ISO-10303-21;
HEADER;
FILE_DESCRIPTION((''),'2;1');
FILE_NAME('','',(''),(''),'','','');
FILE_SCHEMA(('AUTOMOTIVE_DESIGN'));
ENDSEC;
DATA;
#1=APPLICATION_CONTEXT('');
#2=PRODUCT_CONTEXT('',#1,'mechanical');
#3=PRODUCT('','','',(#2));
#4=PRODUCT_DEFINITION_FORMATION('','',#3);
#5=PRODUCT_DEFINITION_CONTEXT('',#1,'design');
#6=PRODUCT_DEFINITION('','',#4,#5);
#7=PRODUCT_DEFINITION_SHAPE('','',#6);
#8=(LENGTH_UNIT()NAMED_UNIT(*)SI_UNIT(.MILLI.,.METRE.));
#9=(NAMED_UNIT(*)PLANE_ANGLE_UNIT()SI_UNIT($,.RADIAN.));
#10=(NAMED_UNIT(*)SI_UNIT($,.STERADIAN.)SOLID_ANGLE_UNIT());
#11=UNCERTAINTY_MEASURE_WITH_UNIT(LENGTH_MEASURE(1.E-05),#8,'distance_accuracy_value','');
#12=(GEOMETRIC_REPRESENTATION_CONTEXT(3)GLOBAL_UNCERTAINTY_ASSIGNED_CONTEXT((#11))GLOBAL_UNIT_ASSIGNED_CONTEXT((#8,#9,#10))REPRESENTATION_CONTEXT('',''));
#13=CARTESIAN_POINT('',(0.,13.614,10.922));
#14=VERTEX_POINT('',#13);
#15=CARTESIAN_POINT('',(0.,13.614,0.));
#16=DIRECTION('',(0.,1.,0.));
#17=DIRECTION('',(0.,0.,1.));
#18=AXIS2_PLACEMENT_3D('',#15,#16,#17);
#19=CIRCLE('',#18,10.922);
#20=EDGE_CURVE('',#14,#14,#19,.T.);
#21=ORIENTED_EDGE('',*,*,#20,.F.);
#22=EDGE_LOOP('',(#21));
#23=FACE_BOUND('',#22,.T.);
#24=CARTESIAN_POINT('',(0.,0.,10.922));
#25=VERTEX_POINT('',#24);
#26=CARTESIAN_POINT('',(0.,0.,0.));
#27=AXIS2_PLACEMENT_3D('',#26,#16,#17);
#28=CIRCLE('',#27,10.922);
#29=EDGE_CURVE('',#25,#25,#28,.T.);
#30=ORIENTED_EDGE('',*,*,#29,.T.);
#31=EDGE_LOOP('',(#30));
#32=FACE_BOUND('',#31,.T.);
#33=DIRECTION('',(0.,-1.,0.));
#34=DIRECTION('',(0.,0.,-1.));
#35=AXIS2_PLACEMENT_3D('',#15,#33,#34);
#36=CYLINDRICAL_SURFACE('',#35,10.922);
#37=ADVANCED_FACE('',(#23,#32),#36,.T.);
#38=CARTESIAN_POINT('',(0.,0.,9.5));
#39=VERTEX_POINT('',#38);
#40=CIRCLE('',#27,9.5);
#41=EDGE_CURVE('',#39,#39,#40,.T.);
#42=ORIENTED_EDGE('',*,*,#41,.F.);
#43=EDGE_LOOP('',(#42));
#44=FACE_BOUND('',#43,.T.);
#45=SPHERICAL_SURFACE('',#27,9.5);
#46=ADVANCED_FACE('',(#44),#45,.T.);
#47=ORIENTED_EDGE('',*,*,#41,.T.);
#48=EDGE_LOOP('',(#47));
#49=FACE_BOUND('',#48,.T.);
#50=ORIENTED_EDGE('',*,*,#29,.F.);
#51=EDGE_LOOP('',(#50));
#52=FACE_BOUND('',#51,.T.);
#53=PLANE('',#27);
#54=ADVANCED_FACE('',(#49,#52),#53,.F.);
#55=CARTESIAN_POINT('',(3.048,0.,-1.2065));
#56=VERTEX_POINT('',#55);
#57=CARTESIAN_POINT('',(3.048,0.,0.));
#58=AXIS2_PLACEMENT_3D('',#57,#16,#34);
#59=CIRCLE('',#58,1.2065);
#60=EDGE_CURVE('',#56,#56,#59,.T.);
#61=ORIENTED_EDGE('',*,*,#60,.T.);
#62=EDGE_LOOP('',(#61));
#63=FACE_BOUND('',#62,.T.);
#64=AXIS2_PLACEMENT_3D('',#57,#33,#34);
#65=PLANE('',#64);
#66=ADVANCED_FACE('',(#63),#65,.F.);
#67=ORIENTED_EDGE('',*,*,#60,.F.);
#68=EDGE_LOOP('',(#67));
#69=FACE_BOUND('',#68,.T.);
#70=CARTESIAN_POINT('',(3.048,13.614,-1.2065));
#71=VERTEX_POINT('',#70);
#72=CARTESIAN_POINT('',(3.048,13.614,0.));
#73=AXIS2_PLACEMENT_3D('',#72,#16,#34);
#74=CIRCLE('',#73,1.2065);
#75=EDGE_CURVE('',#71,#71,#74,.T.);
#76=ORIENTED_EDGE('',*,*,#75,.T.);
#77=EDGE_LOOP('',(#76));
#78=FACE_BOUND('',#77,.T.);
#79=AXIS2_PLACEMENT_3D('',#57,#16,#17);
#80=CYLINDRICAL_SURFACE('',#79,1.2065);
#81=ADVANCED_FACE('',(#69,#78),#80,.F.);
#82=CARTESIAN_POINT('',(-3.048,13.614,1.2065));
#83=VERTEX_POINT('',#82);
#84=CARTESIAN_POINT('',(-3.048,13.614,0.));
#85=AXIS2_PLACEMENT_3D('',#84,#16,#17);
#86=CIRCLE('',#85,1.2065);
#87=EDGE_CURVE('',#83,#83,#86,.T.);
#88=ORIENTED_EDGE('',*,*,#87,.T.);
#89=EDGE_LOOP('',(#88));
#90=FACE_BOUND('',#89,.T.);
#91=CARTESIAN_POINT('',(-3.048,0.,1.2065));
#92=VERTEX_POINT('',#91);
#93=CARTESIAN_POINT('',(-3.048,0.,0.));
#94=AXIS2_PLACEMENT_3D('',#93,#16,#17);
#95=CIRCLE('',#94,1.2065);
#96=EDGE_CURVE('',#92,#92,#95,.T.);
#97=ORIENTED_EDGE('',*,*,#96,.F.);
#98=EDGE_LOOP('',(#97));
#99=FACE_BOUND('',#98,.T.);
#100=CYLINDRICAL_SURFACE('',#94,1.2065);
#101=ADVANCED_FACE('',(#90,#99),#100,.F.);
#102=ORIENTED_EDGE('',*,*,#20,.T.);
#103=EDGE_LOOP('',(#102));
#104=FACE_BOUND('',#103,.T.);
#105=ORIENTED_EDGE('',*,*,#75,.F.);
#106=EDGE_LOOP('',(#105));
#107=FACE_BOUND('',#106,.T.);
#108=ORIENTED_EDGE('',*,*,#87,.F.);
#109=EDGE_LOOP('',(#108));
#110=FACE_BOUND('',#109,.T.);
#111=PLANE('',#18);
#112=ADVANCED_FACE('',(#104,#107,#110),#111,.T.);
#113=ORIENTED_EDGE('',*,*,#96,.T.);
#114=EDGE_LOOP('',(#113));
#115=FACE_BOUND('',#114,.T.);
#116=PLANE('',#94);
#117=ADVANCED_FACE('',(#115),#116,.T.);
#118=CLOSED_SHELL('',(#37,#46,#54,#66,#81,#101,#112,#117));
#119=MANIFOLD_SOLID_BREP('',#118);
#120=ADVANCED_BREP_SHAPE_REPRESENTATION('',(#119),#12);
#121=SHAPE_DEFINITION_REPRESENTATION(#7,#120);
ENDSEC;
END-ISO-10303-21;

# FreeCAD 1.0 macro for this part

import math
import FreeCAD as App
import Part
import Sketcher

V = App.Vector
Q = App.Units.Quantity

doc = App.newDocument("Part")
params = doc.addObject("Spreadsheet::Sheet", "Params")
for row, (alias, value) in enumerate([
    ("revolution_angle", "360 deg"),
    ("sketch2_diameter", "0.86 in"),
    ("pad1_length", "13.614 mm"),
    ("sketch3_diameter", "0.095 in"),
    ("pocket1_length", "13.614 mm"),
], start=1):
    params.set(f"A{row}", alias)
    params.set(f"B{row}", "=" + value)
    params.setAlias(f"B{row}", alias)

body = doc.addObject("PartDesign::Body", "Body")

sketch1 = doc.addObject("Sketcher::SketchObject", "Sketch")
body.addObject(sketch1)
sketch1.AttachmentSupport = (doc.XY_Plane, [""])
sketch1.MapMode = "FlatFace"
sketch1.addGeometry([
    Part.LineSegment(V(-10, 0, 0), V(10, 0, 0)),
    Part.ArcOfCircle(Part.Circle(V(0, 0, 0), V(0, 0, 1), 10), math.radians(0), math.radians(180)),
], False)
sketch1.addConstraint([
    Sketcher.Constraint("Coincident", 0, 1, 1, 2),
    Sketcher.Constraint("Coincident", 1, 1, 0, 2),
    Sketcher.Constraint("Horizontal", 0),
    Sketcher.Constraint("Coincident", 1, 3, -1, 1),
    Sketcher.Constraint("PointOnObject", 0, 1, -1),
    Sketcher.Constraint("Radius", 1, Q("9.5 mm")),
])
revolution = doc.addObject("PartDesign::Revolution", "Revolution")
body.addObject(revolution)
revolution.Profile = sketch1
revolution.ReferenceAxis = (sketch1, ["H_Axis"])
revolution.setExpression("Angle", "Params.revolution_angle")

sketch2 = doc.addObject("Sketcher::SketchObject", "Sketch001")
body.addObject(sketch2)
sketch2.AttachmentSupport = (doc.XZ_Plane, [""])
sketch2.MapMode = "FlatFace"
sketch2.addGeometry(Part.Circle(V(0, 0, 0), V(0, 0, 1), 11), False)
sketch2.addConstraint([
    Sketcher.Constraint("Coincident", 0, 3, -1, 1),
    Sketcher.Constraint("Diameter", 0, Q("0.86 in")),
])
sketch2.setExpression("Constraints[1]", "Params.sketch2_diameter")
pad1 = doc.addObject("PartDesign::Pad", "Pad")
body.addObject(pad1)
pad1.Profile = sketch2
pad1.setExpression("Length", "Params.pad1_length")
pad1.Reversed = True

sketch3 = doc.addObject("Sketcher::SketchObject", "Sketch002")
body.addObject(sketch3)
sketch3.AttachmentSupport = (doc.XZ_Plane, [""])
sketch3.MapMode = "FlatFace"
sketch3.AttachmentOffset = App.Placement(V(0, 0, -13.614), App.Rotation())
sketch3.addGeometry([
    Part.Circle(V(-3, 0, 0), V(0, 0, 1), 1.2),
    Part.Circle(V(3, 0, 0), V(0, 0, 1), 1.2),
], False)
sketch3.addConstraint([
    Sketcher.Constraint("Equal", 0, 1),
    Sketcher.Constraint("Symmetric", 0, 3, 1, 3, -1, 1),
    Sketcher.Constraint("PointOnObject", 0, 3, -1),
    Sketcher.Constraint("Diameter", 0, Q("0.095 in")),
    Sketcher.Constraint("DistanceX", 0, 3, -1, 1, Q("0.12 in")),
])
sketch3.setExpression("Constraints[3]", "Params.sketch3_diameter")
pocket1 = doc.addObject("PartDesign::Pocket", "Pocket")
body.addObject(pocket1)
pocket1.Profile = sketch3
pocket1.setExpression("Length", "Params.pocket1_length")
pocket1.Reversed = True

doc.recompute()
